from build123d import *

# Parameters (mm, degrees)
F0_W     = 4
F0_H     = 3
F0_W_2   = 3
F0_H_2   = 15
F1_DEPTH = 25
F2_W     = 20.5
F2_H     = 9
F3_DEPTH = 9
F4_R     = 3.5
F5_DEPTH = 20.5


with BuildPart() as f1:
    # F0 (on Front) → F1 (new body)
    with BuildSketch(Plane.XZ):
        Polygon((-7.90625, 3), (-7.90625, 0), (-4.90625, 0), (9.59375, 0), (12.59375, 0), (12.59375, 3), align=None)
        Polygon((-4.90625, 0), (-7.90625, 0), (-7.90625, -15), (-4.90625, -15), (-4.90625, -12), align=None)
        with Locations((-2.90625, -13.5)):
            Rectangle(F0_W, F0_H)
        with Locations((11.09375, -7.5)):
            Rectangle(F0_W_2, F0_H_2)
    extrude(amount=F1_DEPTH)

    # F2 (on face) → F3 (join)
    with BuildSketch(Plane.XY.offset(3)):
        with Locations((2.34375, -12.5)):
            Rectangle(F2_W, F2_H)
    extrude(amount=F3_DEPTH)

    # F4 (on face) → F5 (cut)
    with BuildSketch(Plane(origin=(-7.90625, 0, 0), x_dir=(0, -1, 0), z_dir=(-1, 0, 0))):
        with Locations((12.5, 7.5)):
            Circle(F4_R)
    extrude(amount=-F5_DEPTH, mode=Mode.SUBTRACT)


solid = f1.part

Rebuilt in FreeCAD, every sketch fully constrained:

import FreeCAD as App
import Part
import Sketcher

V = App.Vector
Q = App.Units.Quantity


def add_polygon(sketch, points):
    """Adds a closed chain of lines whose ends are joined by coincident constraints."""
    first, n = sketch.GeometryCount, len(points)
    for a, b in zip(points, points[1:] + points[:1]):
        sketch.addGeometry(Part.LineSegment(App.Vector(*a, 0), App.Vector(*b, 0)), False)
    for i in range(n):
        sketch.addConstraint(Sketcher.Constraint("Coincident", first + i, 2, first + (i + 1) % n, 1))

doc = App.newDocument("Part")
params = doc.addObject("Spreadsheet::Sheet", "Params")
for row, (alias, value) in enumerate([
    ("sketch1_width", "7 mm"),
    ("sketch1_width2", "4 mm"),
    ("sketch1_width3", "3 mm"),
    ("sketch1_height", "18 mm"),
    ("sketch1_height2", "12 mm"),
    ("pad1_length", "25 mm"),
    ("sketch2_height", "9 mm"),
    ("sketch2_width", "20.5 mm"),
    ("pad2_length", "9 mm"),
    ("sketch3_diameter", "7 mm"),
    ("pocket1_length", "20.5 mm"),
], start=1):
    params.set(f"A{row}", alias)
    params.set(f"B{row}", "=" + value)
    params.setAlias(f"B{row}", alias)

body = doc.addObject("PartDesign::Body", "Body")

sketch1 = body.newObject("Sketcher::SketchObject", "Sketch")
sketch1.AttachmentSupport = (doc.getObject("XZ_Plane"), [""])
sketch1.MapMode = "FlatFace"
add_polygon(sketch1, [(-7.9, 3), (-7.9, -15), (-0.9, -15), (-0.9, -12), (-4.9, -12), (-4.9, 0), (9.6, 0), (9.6, -15), (12.6, -15), (12.6, 3)])
sketch1.addConstraint([
    Sketcher.Constraint("Vertical", 0),
    Sketcher.Constraint("Horizontal", 1),
    Sketcher.Constraint("Vertical", 2),
    Sketcher.Constraint("Horizontal", 3),
    Sketcher.Constraint("Vertical", 4),
    Sketcher.Constraint("Horizontal", 5),
    Sketcher.Constraint("Vertical", 6),
    Sketcher.Constraint("Horizontal", 7),
    Sketcher.Constraint("Vertical", 8),
    Sketcher.Constraint("Horizontal", 9),
    Sketcher.Constraint("PointOnObject", 4, 2, -1),
    Sketcher.Constraint("Horizontal", 1, 2, 6, 2),
    Sketcher.Constraint("Equal", 7, 2),
    Sketcher.Constraint("DistanceX", 1, 1, 1, 2, Q("7 mm")),
    Sketcher.Constraint("DistanceX", 3, 2, 3, 1, Q("4 mm")),
    Sketcher.Constraint("DistanceX", 7, 1, 7, 2, Q("3 mm")),
    Sketcher.Constraint("DistanceY", 0, 2, 0, 1, Q("18 mm")),
    Sketcher.Constraint("DistanceY", 4, 1, 4, 2, Q("12 mm")),
    Sketcher.Constraint("DistanceX", 5, 1, 5, 2, Q("14.5 mm")),
    Sketcher.Constraint("DistanceX", 0, 2, -1, 1, Q("7.90625 mm")),
])
sketch1.setExpression("Constraints[23]", "Params.sketch1_width")
sketch1.setExpression("Constraints[24]", "Params.sketch1_width2")
sketch1.setExpression("Constraints[25]", "Params.sketch1_width3")
sketch1.setExpression("Constraints[26]", "Params.sketch1_height")
sketch1.setExpression("Constraints[27]", "Params.sketch1_height2")
pad1 = body.newObject("PartDesign::Pad", "Pad")
pad1.Profile = sketch1
pad1.setExpression("Length", "Params.pad1_length")

sketch2 = body.newObject("Sketcher::SketchObject", "Sketch001")
sketch2.AttachmentSupport = (doc.getObject("XY_Plane"), [""])
sketch2.MapMode = "FlatFace"
sketch2.AttachmentOffset = App.Placement(V(0, 0, 3), App.Rotation())
add_polygon(sketch2, [(-8, -8), (-8, -17), (13, -17), (13, -8)])
sketch2.addConstraint([
    Sketcher.Constraint("Vertical", 0),
    Sketcher.Constraint("Horizontal", 1),
    Sketcher.Constraint("Vertical", 2),
    Sketcher.Constraint("Horizontal", 3),
    Sketcher.Constraint("DistanceY", 0, 2, 0, 1, Q("9 mm")),
    Sketcher.Constraint("DistanceX", 1, 1, 1, 2, Q("20.5 mm")),
    Sketcher.Constraint("DistanceY", 0, 2, -1, 1, Q("17 mm")),
    Sketcher.Constraint("DistanceX", 0, 2, -1, 1, Q("7.90625 mm")),
])
sketch2.setExpression("Constraints[8]", "Params.sketch2_height")
sketch2.setExpression("Constraints[9]", "Params.sketch2_width")
pad2 = body.newObject("PartDesign::Pad", "Pad001")
pad2.Profile = sketch2
pad2.setExpression("Length", "Params.pad2_length")

sketch3 = body.newObject("Sketcher::SketchObject", "Sketch002")
sketch3.AttachmentSupport = (doc.getObject("YZ_Plane"), [""])
sketch3.MapMode = "FlatFace"
sketch3.AttachmentOffset = App.Placement(V(0, 0, -7.90625), App.Rotation())
sketch3.addGeometry(Part.Circle(V(-12.5, 7.5, 0), V(0, 0, 1), 3.5), False)
sketch3.addConstraint([
    Sketcher.Constraint("Diameter", 0, Q("7 mm")),
    Sketcher.Constraint("DistanceX", 0, 3, -1, 1, Q("12.5 mm")),
    Sketcher.Constraint("DistanceY", -1, 1, 0, 3, Q("7.5 mm")),
])
sketch3.setExpression("Constraints[0]", "Params.sketch3_diameter")
pocket1 = body.newObject("PartDesign::Pocket", "Pocket")
pocket1.Profile = sketch3
pocket1.setExpression("Length", "Params.pocket1_length")
pocket1.Reversed = True

doc.recompute()
